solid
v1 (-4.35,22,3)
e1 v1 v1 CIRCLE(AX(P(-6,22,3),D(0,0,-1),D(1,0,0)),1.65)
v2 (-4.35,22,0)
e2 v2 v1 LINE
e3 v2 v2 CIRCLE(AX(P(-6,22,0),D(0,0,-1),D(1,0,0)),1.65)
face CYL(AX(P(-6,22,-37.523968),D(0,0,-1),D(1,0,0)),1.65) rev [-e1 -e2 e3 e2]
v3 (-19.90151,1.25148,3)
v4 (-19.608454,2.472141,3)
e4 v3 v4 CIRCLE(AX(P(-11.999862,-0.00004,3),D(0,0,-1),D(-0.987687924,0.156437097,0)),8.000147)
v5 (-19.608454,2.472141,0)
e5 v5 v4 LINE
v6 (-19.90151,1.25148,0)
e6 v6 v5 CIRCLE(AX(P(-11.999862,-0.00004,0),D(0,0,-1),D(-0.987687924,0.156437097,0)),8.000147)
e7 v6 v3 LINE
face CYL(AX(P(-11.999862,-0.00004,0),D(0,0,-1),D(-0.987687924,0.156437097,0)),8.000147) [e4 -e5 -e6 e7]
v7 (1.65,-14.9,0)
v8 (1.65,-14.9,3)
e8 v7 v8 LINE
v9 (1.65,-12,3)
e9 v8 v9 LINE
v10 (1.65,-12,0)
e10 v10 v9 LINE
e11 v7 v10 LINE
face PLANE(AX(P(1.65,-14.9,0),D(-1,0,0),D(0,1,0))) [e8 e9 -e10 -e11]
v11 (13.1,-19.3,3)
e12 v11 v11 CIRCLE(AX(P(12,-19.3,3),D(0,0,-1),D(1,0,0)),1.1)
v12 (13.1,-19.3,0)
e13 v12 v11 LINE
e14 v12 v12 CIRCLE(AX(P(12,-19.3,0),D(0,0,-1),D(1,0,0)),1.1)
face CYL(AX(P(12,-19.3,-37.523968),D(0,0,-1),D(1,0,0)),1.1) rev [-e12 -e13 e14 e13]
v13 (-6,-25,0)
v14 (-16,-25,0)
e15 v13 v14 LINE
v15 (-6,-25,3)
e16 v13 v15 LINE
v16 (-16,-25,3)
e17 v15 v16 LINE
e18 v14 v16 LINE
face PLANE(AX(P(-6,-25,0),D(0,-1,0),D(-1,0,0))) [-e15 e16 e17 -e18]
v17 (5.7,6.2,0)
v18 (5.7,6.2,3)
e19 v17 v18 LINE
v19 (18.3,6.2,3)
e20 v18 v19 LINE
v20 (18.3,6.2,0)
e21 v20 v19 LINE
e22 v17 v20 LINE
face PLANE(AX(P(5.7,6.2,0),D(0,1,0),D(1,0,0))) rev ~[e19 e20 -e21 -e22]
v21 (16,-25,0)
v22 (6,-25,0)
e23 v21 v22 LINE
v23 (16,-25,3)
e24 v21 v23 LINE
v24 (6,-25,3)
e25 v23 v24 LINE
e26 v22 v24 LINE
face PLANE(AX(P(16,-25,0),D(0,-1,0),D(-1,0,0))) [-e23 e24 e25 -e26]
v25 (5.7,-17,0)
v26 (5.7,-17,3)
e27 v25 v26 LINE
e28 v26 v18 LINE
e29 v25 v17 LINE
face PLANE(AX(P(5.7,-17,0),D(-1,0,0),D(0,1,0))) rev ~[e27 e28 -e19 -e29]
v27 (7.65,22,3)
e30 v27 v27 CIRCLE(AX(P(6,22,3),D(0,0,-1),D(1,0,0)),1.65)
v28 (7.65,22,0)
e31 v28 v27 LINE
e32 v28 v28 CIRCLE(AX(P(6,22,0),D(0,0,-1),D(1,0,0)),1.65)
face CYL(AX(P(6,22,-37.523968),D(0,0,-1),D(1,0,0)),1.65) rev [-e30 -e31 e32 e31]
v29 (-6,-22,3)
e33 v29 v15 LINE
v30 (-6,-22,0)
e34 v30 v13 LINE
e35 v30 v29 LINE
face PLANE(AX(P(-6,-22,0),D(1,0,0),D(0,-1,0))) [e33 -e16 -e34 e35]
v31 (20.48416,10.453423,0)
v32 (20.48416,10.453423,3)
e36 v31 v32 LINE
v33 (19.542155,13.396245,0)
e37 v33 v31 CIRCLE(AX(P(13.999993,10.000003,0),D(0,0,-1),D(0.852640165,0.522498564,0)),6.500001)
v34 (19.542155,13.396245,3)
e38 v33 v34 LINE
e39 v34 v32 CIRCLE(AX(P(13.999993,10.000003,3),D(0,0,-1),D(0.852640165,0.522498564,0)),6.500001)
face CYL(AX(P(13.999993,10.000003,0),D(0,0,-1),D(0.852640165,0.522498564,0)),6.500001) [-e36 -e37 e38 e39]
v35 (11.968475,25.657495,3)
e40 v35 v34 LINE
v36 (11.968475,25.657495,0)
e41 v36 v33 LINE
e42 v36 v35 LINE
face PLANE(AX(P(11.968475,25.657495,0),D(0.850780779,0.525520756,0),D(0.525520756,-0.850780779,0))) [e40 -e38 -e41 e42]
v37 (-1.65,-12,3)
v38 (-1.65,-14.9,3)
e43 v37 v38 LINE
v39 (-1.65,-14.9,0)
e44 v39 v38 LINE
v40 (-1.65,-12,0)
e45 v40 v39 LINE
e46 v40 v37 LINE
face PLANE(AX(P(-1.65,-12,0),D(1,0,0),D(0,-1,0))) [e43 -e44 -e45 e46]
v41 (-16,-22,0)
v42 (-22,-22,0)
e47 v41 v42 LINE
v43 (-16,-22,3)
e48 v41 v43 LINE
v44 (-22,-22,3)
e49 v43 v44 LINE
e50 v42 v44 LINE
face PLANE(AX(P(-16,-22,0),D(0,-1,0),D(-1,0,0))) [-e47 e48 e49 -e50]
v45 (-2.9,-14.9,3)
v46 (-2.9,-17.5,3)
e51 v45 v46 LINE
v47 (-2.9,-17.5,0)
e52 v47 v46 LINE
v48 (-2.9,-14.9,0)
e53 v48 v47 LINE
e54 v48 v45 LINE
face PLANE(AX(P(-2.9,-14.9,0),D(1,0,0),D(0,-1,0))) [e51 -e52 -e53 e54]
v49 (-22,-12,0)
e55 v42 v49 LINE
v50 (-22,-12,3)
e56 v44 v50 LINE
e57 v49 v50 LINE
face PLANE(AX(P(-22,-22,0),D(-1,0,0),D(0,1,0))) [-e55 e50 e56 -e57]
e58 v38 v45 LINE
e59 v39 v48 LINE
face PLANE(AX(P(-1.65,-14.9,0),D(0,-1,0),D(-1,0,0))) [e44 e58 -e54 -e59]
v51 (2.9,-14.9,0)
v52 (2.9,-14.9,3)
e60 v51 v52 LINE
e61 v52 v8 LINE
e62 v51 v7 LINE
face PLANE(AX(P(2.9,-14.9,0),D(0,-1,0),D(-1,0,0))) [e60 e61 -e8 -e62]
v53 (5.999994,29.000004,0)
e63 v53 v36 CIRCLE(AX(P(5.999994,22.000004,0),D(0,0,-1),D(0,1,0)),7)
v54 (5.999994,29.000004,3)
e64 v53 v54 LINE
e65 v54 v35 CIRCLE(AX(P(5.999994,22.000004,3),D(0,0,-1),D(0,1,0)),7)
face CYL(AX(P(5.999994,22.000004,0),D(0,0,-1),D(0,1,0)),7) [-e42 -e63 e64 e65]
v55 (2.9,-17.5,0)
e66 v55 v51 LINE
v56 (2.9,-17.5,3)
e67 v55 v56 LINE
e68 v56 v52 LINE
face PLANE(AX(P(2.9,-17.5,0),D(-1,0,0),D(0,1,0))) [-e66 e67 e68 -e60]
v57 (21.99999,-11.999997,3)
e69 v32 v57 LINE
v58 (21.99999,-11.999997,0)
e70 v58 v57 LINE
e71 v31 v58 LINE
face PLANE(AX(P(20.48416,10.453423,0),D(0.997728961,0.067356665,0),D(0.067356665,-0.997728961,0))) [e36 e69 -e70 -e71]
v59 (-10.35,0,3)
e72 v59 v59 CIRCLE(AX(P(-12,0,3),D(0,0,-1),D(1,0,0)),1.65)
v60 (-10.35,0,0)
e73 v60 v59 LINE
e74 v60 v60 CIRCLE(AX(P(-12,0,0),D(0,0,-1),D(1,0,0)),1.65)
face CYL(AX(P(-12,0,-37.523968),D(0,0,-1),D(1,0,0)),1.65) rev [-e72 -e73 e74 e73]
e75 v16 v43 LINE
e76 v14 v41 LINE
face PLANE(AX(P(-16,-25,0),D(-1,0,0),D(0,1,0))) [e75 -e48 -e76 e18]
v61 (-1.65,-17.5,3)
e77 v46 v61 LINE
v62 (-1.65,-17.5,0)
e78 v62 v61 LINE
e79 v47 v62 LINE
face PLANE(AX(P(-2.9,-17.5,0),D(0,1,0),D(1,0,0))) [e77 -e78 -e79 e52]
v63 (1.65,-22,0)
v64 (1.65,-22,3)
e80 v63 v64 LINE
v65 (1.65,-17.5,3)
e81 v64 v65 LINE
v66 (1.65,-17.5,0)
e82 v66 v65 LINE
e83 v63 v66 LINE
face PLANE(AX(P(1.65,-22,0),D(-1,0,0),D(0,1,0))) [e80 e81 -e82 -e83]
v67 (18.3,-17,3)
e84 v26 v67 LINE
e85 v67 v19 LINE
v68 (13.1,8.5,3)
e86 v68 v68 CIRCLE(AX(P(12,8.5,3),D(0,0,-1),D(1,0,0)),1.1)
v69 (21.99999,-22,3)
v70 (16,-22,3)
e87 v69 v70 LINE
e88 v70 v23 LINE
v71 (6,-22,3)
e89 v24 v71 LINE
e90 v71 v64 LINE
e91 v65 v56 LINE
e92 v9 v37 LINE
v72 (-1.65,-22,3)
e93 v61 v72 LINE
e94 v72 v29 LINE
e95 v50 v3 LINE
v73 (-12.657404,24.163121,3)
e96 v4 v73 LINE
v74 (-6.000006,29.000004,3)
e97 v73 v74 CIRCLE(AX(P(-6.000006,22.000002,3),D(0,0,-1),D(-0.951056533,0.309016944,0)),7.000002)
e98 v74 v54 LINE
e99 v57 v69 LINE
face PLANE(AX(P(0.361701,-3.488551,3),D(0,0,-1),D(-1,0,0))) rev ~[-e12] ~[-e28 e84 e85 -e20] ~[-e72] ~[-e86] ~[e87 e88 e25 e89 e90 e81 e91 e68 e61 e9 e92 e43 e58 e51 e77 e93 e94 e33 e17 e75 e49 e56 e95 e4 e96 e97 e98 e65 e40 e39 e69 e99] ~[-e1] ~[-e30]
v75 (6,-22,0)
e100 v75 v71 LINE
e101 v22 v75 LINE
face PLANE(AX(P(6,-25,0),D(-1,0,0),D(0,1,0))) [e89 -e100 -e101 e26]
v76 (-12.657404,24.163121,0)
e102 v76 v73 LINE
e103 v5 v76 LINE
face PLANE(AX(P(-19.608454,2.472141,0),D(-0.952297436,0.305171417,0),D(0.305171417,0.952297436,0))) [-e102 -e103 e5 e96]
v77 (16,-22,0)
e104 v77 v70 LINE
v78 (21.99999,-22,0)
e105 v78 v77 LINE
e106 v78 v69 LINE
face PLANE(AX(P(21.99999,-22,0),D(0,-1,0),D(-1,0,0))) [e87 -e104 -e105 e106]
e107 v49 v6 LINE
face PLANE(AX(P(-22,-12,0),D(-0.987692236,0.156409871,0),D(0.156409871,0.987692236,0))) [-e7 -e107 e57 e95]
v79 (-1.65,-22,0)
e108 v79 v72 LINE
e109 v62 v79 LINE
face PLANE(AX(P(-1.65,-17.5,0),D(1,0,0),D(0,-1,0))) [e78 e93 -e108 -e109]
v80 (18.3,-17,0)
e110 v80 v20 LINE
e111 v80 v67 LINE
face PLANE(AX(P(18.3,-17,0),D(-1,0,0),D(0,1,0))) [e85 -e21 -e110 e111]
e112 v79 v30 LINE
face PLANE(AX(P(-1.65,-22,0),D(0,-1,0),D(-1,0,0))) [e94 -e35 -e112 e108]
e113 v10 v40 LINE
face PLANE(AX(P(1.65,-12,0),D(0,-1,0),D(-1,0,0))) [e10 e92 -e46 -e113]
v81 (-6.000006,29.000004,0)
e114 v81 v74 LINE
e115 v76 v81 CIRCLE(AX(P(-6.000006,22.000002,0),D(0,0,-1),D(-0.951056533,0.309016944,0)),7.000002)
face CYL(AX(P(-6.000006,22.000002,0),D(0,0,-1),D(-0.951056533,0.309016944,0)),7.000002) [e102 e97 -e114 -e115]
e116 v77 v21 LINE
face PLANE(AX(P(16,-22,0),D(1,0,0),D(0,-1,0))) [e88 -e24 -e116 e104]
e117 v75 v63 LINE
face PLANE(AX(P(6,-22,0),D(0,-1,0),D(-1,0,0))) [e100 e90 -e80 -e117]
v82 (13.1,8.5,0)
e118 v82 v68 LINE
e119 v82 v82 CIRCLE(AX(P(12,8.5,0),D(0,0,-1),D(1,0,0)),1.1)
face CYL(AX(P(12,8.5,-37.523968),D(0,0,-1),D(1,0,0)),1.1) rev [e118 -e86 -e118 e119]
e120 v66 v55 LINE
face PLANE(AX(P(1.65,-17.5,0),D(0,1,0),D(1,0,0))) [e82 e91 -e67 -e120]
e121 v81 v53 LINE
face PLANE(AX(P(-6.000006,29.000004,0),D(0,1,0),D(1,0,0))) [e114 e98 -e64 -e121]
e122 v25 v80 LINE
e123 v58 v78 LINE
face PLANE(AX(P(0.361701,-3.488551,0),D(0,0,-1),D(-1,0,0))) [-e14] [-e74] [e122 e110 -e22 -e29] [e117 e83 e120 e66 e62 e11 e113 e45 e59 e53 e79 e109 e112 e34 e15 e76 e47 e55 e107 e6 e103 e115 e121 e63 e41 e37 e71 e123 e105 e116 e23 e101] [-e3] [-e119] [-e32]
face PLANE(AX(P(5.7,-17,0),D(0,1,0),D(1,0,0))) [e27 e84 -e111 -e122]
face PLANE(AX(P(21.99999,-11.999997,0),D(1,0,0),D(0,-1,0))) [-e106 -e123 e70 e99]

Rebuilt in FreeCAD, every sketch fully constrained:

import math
import FreeCAD as App
import Part
import Sketcher
Q = App.Units.Quantity

doc = App.newDocument("Part")
body = doc.addObject("PartDesign::Body", "Body")

sketch1 = body.newObject("Sketcher::SketchObject", "Sketch")
sketch1.AttachmentSupport = (doc.getObject("XY_Plane"), [""])
sketch1.MapMode = "FlatFace"
sketch1.addGeometry([
    Part.LineSegment(App.Vector(-12.7, 24.2, 0), App.Vector(-19.6, 2.5, 0)),
    Part.ArcOfCircle(Part.Circle(App.Vector(-12, 0, 0), App.Vector(0, 0, 1), 8), math.radians(162), math.radians(171)),
    Part.LineSegment(App.Vector(-19.9, 1.3, 0), App.Vector(-22, -12, 0)),
    Part.LineSegment(App.Vector(-22, -12, 0), App.Vector(-22, -22, 0)),
    Part.LineSegment(App.Vector(-22, -22, 0), App.Vector(-16, -22, 0)),
    Part.LineSegment(App.Vector(-16, -22, 0), App.Vector(-16, -25, 0)),
    Part.LineSegment(App.Vector(-16, -25, 0), App.Vector(-6, -25, 0)),
    Part.LineSegment(App.Vector(-6, -25, 0), App.Vector(-6, -22, 0)),
    Part.LineSegment(App.Vector(-6, -22, 0), App.Vector(-1.6, -22, 0)),
    Part.LineSegment(App.Vector(-1.6, -22, 0), App.Vector(-1.6, -17.5, 0)),
    Part.LineSegment(App.Vector(-1.6, -17.5, 0), App.Vector(-2.9, -17.5, 0)),
    Part.LineSegment(App.Vector(-2.9, -17.5, 0), App.Vector(-2.9, -14.9, 0)),
    Part.LineSegment(App.Vector(-2.9, -14.9, 0), App.Vector(-1.6, -14.9, 0)),
    Part.LineSegment(App.Vector(-1.6, -14.9, 0), App.Vector(-1.6, -12, 0)),
    Part.LineSegment(App.Vector(-1.6, -12, 0), App.Vector(1.6, -12, 0)),
    Part.LineSegment(App.Vector(1.6, -12, 0), App.Vector(1.6, -14.9, 0)),
    Part.LineSegment(App.Vector(1.6, -14.9, 0), App.Vector(2.9, -14.9, 0)),
    Part.LineSegment(App.Vector(2.9, -14.9, 0), App.Vector(2.9, -17.5, 0)),
    Part.LineSegment(App.Vector(2.9, -17.5, 0), App.Vector(1.6, -17.5, 0)),
    Part.LineSegment(App.Vector(1.6, -17.5, 0), App.Vector(1.6, -22, 0)),
    Part.LineSegment(App.Vector(1.6, -22, 0), App.Vector(6, -22, 0)),
    Part.LineSegment(App.Vector(6, -22, 0), App.Vector(6, -25, 0)),
    Part.LineSegment(App.Vector(6, -25, 0), App.Vector(16, -25, 0)),
    Part.LineSegment(App.Vector(16, -25, 0), App.Vector(16, -22, 0)),
    Part.LineSegment(App.Vector(16, -22, 0), App.Vector(22, -22, 0)),
    Part.LineSegment(App.Vector(22, -22, 0), App.Vector(22, -12, 0)),
    Part.LineSegment(App.Vector(22, -12, 0), App.Vector(20.5, 10.5, 0)),
    Part.ArcOfCircle(Part.Circle(App.Vector(14, 10, 0), App.Vector(0, 0, 1), 6.5), math.radians(4), math.radians(31)),
    Part.LineSegment(App.Vector(19.5, 13.4, 0), App.Vector(12, 25.7, 0)),
    Part.ArcOfCircle(Part.Circle(App.Vector(6, 22, 0), App.Vector(0, 0, 1), 7), math.radians(32), math.radians(90)),
    Part.LineSegment(App.Vector(6, 29, 0), App.Vector(-6, 29, 0)),
    Part.ArcOfCircle(Part.Circle(App.Vector(-6, 22, 0), App.Vector(0, 0, 1), 7), math.radians(90), math.radians(162)),
    Part.LineSegment(App.Vector(5.7, -17, 0), App.Vector(5.7, 6.2, 0)),
    Part.LineSegment(App.Vector(5.7, 6.2, 0), App.Vector(18.3, 6.2, 0)),
    Part.LineSegment(App.Vector(18.3, 6.2, 0), App.Vector(18.3, -17, 0)),
    Part.LineSegment(App.Vector(18.3, -17, 0), App.Vector(5.7, -17, 0)),
], False)
sketch1.addConstraint([
    Sketcher.Constraint("Coincident", 0, 2, 1, 1),
    Sketcher.Constraint("Coincident", 1, 2, 2, 1),
    Sketcher.Constraint("Coincident", 2, 2, 3, 1),
    Sketcher.Constraint("Coincident", 3, 2, 4, 1),
    Sketcher.Constraint("Coincident", 4, 2, 5, 1),
    Sketcher.Constraint("Coincident", 5, 2, 6, 1),
    Sketcher.Constraint("Coincident", 6, 2, 7, 1),
    Sketcher.Constraint("Coincident", 7, 2, 8, 1),
    Sketcher.Constraint("Coincident", 8, 2, 9, 1),
    Sketcher.Constraint("Coincident", 9, 2, 10, 1),
    Sketcher.Constraint("Coincident", 10, 2, 11, 1),
    Sketcher.Constraint("Coincident", 11, 2, 12, 1),
    Sketcher.Constraint("Coincident", 12, 2, 13, 1),
    Sketcher.Constraint("Coincident", 13, 2, 14, 1),
    Sketcher.Constraint("Coincident", 14, 2, 15, 1),
    Sketcher.Constraint("Coincident", 15, 2, 16, 1),
    Sketcher.Constraint("Coincident", 16, 2, 17, 1),
    Sketcher.Constraint("Coincident", 17, 2, 18, 1),
    Sketcher.Constraint("Coincident", 18, 2, 19, 1),
    Sketcher.Constraint("Coincident", 19, 2, 20, 1),
    Sketcher.Constraint("Coincident", 20, 2, 21, 1),
    Sketcher.Constraint("Coincident", 21, 2, 22, 1),
    Sketcher.Constraint("Coincident", 22, 2, 23, 1),
    Sketcher.Constraint("Coincident", 23, 2, 24, 1),
    Sketcher.Constraint("Coincident", 24, 2, 25, 1),
    Sketcher.Constraint("Coincident", 25, 2, 26, 1),
    Sketcher.Constraint("Coincident", 26, 2, 27, 1),
    Sketcher.Constraint("Coincident", 27, 2, 28, 1),
    Sketcher.Constraint("Coincident", 28, 2, 29, 1),
    Sketcher.Constraint("Tangent", 29, 2, 30, 1),
    Sketcher.Constraint("Tangent", 30, 2, 31, 1),
    Sketcher.Constraint("Coincident", 31, 2, 0, 1),
    Sketcher.Constraint("Coincident", 32, 2, 33, 1),
    Sketcher.Constraint("Coincident", 33, 2, 34, 1),
    Sketcher.Constraint("Coincident", 34, 2, 35, 1),
    Sketcher.Constraint("Coincident", 35, 2, 32, 1),
    Sketcher.Constraint("Vertical", 3),
    Sketcher.Constraint("Horizontal", 4),
    Sketcher.Constraint("Vertical", 5),
    Sketcher.Constraint("Horizontal", 6),
    Sketcher.Constraint("Vertical", 7),
    Sketcher.Constraint("Horizontal", 8),
    Sketcher.Constraint("Vertical", 9),
    Sketcher.Constraint("Horizontal", 10),
    Sketcher.Constraint("Vertical", 11),
    Sketcher.Constraint("Horizontal", 12),
    Sketcher.Constraint("Vertical", 13),
    Sketcher.Constraint("Horizontal", 14),
    Sketcher.Constraint("Vertical", 15),
    Sketcher.Constraint("Horizontal", 16),
    Sketcher.Constraint("Vertical", 17),
    Sketcher.Constraint("Horizontal", 18),
    Sketcher.Constraint("Vertical", 19),
    Sketcher.Constraint("Horizontal", 20),
    Sketcher.Constraint("Vertical", 21),
    Sketcher.Constraint("Horizontal", 22),
    Sketcher.Constraint("Vertical", 23),
    Sketcher.Constraint("Horizontal", 24),
    Sketcher.Constraint("Vertical", 25),
    Sketcher.Constraint("Horizontal", 30),
    Sketcher.Constraint("Vertical", 32),
    Sketcher.Constraint("Horizontal", 33),
    Sketcher.Constraint("Vertical", 34),
    Sketcher.Constraint("Horizontal", 35),
    Sketcher.Constraint("Symmetric", 12, 2, 15, 2, -2),
    Sketcher.Constraint("Symmetric", 10, 2, 17, 2, -2),
    Sketcher.Constraint("Symmetric", 8, 2, 19, 2, -2),
    Sketcher.Constraint("Symmetric", 6, 2, 21, 2, -2),
    Sketcher.Constraint("Symmetric", 4, 2, 23, 2, -2),
    Sketcher.Constraint("Horizontal", 4, 2, 7, 2),
    Sketcher.Constraint("Horizontal", 2, 2, 13, 2),
    Sketcher.Constraint("Vertical", 9, 2, 12, 2),
    Sketcher.Constraint("Equal", 22, 3),
    Sketcher.Constraint("Radius", 29, Q("7 mm")),
    Sketcher.Constraint("Radius", 27, Q("6.500001 mm")),
    Sketcher.Constraint("DistanceX", 4, 1, 4, 2, Q("6 mm")),
    Sketcher.Constraint("DistanceX", 6, 1, 6, 2, Q("10 mm")),
    Sketcher.Constraint("DistanceX", 30, 2, 30, 1, Q("12 mm")),
    Sketcher.Constraint("DistanceY", 5, 2, 5, 1, Q("3 mm")),
    Sketcher.Constraint("DistanceX", 14, 1, 14, 2, Q("3.3 mm")),
    Sketcher.Constraint("DistanceX", 33, 1, 33, 2, Q("12.6 mm")),
    Sketcher.Constraint("DistanceY", 9, 1, 9, 2, Q("4.5 mm")),
    Sketcher.Constraint("DistanceY", 11, 1, 11, 2, Q("2.6 mm")),
    Sketcher.Constraint("DistanceY", 32, 1, 32, 2, Q("23.2 mm")),
    Sketcher.Constraint("DistanceY", -1, 1, 31, 3, Q("22.000002 mm")),
    Sketcher.Constraint("DistanceX", 2, 2, -1, 1, Q("22 mm")),
    Sketcher.Constraint("DistanceY", 2, 2, -1, 1, Q("12 mm")),
    Sketcher.Constraint("DistanceY", 34, 2, -1, 1, Q("17 mm")),
    Sketcher.Constraint("DistanceX", 29, 3, 27, 3, Q("7.999998 mm")),
    Sketcher.Constraint("DistanceY", 27, 3, 29, 3, Q("12.000001 mm")),
    Sketcher.Constraint("DistanceY", 27, 3, 31, 3, Q("11.999998 mm")),
    Sketcher.Constraint("DistanceX", 10, 2, 10, 1, Q("1.25 mm")),
    Sketcher.Constraint("DistanceX", -1, 1, 32, 2, Q("5.7 mm")),
    Sketcher.Constraint("Radius", 1, Q("8.000147 mm")),
    Sketcher.Constraint("DistanceX", 24, 1, 24, 2, Q("5.99999 mm")),
    Sketcher.Constraint("Distance", 2, Q("13.416608 mm")),
    Sketcher.Constraint("Distance", 26, Q("22.504529 mm")),
    Sketcher.Constraint("Distance", 28, Q("14.411762 mm")),
    Sketcher.Constraint("DistanceY", 25, 1, 25, 2, Q("10.000003 mm")),
    Sketcher.Constraint("DistanceX", 1, 3, -1, 1, Q("11.999862 mm")),
    Sketcher.Constraint("DistanceY", -1, 1, 0, 2, Q("2.472141 mm")),
    Sketcher.Constraint("DistanceX", 1, 2, -1, 1, Q("19.90151 mm")),
    Sketcher.Constraint("DistanceX", -1, 1, 26, 2, Q("20.48416 mm")),
    Sketcher.Constraint("DistanceY", -1, 1, 31, 2, Q("24.163121 mm")),
    Sketcher.Constraint("DistanceY", 26, 2, 27, 2, Q("2.942822 mm")),
])
pad1 = body.newObject("PartDesign::Pad", "Pad")
pad1.Profile = sketch1
pad1.Length = 3

sketch2 = body.newObject("Sketcher::SketchObject", "Sketch001")
sketch2.AttachmentSupport = (doc.getObject("XY_Plane"), [""])
sketch2.MapMode = "FlatFace"
sketch2.addGeometry([
    Part.Circle(App.Vector(-12, 0, 0), App.Vector(0, 0, 1), 1.6),
    Part.Circle(App.Vector(12, -19.3, 0), App.Vector(0, 0, 1), 1.1),
    Part.Circle(App.Vector(-6, 22, 0), App.Vector(0, 0, 1), 1.6),
    Part.Circle(App.Vector(12, 8.5, 0), App.Vector(0, 0, 1), 1.1),
    Part.Circle(App.Vector(6, 22, 0), App.Vector(0, 0, 1), 1.6),
], False)
sketch2.addConstraint([
    Sketcher.Constraint("Equal", 0, 2),
    Sketcher.Constraint("Equal", 1, 3),
    Sketcher.Constraint("Equal", 2, 4),
    Sketcher.Constraint("Symmetric", 2, 3, 4, 3, -2),
    Sketcher.Constraint("PointOnObject", 0, 3, -1),
    Sketcher.Constraint("Vertical", 1, 3, 3, 3),
    Sketcher.Constraint("Diameter", 0, Q("3.3 mm")),
    Sketcher.Constraint("Diameter", 1, Q("2.2 mm")),
    Sketcher.Constraint("DistanceX", 0, 3, -1, 1, Q("12 mm")),
    Sketcher.Constraint("DistanceX", -1, 1, 1, 3, Q("12 mm")),
    Sketcher.Constraint("DistanceX", 2, 3, -1, 1, Q("6 mm")),
    Sketcher.Constraint("DistanceY", -1, 1, 2, 3, Q("22 mm")),
    Sketcher.Constraint("DistanceY", 1, 3, -1, 1, Q("19.3 mm")),
    Sketcher.Constraint("DistanceY", -1, 1, 3, 3, Q("8.5 mm")),
])
pocket1 = body.newObject("PartDesign::Pocket", "Pocket")
pocket1.Profile = sketch2
pocket1.Type = "ThroughAll"
pocket1.Midplane = True

doc.recompute()
